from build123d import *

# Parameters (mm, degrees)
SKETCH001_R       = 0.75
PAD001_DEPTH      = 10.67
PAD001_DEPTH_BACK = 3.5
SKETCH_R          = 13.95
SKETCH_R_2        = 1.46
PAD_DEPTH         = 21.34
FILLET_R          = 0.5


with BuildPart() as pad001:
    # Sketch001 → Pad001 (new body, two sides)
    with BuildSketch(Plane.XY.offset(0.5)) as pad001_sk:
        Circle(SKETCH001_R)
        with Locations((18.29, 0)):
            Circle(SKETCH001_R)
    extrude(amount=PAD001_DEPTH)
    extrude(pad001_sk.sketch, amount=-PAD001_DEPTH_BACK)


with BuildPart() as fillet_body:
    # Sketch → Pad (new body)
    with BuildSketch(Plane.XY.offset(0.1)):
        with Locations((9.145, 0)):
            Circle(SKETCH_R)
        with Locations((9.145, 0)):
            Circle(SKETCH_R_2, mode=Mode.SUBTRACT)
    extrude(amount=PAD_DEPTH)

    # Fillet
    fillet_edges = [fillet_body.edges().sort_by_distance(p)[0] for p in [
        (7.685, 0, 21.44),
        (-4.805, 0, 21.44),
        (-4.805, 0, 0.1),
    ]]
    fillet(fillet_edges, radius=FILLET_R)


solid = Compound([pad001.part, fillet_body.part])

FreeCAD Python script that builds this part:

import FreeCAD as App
import Part
import Sketcher
from FreeCAD import Vector
Q = App.Units.Quantity


def edges_at(feature, points):
    """Names of the edges that pass closest to the given points."""
    edges = feature.Shape.Edges
    near = lambda p: min(range(len(edges)), key=lambda i: edges[i].distToShape(Part.Vertex(*p))[0])
    return sorted({f"Edge{near(p) + 1}" for p in points})

doc = App.newDocument("Part")
body = doc.addObject("PartDesign::Body", "Body")
body.AllowCompound = True

sketch1 = body.newObject("Sketcher::SketchObject", "Sketch")
sketch1.AttachmentSupport = (doc.getObject("XY_Plane"), [""])
sketch1.MapMode = "FlatFace"
sketch1.AttachmentOffset = App.Placement(Vector(0, 0, 0.5), App.Rotation())
sketch1.addGeometry(Part.Circle(Vector(0, 0, 0), Vector(0, 0, 1), 0.8), False)
sketch1.addGeometry(Part.Circle(Vector(18.3, 0, 0), Vector(0, 0, 1), 0.8), False)
sketch1.addConstraint(Sketcher.Constraint("Coincident", 0, 3, -1, 1))
sketch1.addConstraint(Sketcher.Constraint("Equal", 0, 1))
sketch1.addConstraint(Sketcher.Constraint("PointOnObject", 1, 3, -1))
sketch1.addConstraint(Sketcher.Constraint("Diameter", 0, Q("1.5 mm")))
sketch1.addConstraint(Sketcher.Constraint("DistanceX", -1, 1, 1, 3, Q("18.29 mm")))
pad1 = body.newObject("PartDesign::Pad", "Pad")
pad1.Profile = sketch1
pad1.Type = "TwoLengths"
pad1.Length = 10.67
pad1.Length2 = 3.5
body2 = doc.addObject("PartDesign::Body", "Body001")

sketch2 = body2.newObject("Sketcher::SketchObject", "Sketch001")
sketch2.AttachmentSupport = (doc.getObject("XY_Plane001"), [""])
sketch2.MapMode = "FlatFace"
sketch2.AttachmentOffset = App.Placement(Vector(0, 0, 0.1), App.Rotation())
sketch2.addGeometry(Part.Circle(Vector(9.1, 0, 0), Vector(0, 0, 1), 13.9), False)
sketch2.addGeometry(Part.Circle(Vector(9.1, 0, 0), Vector(0, 0, 1), 1.5), False)
sketch2.addConstraint(Sketcher.Constraint("Coincident", 1, 3, 0, 3))
sketch2.addConstraint(Sketcher.Constraint("PointOnObject", 0, 3, -1))
sketch2.addConstraint(Sketcher.Constraint("Diameter", 0, Q("27.9 mm")))
sketch2.addConstraint(Sketcher.Constraint("Diameter", 1, Q("2.92 mm")))
sketch2.addConstraint(Sketcher.Constraint("DistanceX", -1, 1, 0, 3, Q("9.145 mm")))
pad2 = body2.newObject("PartDesign::Pad", "Pad001")
pad2.Profile = sketch2
pad2.Length = 21.34
doc.recompute()

fillet = body2.newObject("PartDesign::Fillet", "Fillet")
fillet.Base = (pad2, edges_at(pad2, [(7.685, 0, 21.44), (-4.805, 0, 21.44), (-4.805, 0, 0.1)]))
fillet.Radius = 0.5

doc.recompute()
